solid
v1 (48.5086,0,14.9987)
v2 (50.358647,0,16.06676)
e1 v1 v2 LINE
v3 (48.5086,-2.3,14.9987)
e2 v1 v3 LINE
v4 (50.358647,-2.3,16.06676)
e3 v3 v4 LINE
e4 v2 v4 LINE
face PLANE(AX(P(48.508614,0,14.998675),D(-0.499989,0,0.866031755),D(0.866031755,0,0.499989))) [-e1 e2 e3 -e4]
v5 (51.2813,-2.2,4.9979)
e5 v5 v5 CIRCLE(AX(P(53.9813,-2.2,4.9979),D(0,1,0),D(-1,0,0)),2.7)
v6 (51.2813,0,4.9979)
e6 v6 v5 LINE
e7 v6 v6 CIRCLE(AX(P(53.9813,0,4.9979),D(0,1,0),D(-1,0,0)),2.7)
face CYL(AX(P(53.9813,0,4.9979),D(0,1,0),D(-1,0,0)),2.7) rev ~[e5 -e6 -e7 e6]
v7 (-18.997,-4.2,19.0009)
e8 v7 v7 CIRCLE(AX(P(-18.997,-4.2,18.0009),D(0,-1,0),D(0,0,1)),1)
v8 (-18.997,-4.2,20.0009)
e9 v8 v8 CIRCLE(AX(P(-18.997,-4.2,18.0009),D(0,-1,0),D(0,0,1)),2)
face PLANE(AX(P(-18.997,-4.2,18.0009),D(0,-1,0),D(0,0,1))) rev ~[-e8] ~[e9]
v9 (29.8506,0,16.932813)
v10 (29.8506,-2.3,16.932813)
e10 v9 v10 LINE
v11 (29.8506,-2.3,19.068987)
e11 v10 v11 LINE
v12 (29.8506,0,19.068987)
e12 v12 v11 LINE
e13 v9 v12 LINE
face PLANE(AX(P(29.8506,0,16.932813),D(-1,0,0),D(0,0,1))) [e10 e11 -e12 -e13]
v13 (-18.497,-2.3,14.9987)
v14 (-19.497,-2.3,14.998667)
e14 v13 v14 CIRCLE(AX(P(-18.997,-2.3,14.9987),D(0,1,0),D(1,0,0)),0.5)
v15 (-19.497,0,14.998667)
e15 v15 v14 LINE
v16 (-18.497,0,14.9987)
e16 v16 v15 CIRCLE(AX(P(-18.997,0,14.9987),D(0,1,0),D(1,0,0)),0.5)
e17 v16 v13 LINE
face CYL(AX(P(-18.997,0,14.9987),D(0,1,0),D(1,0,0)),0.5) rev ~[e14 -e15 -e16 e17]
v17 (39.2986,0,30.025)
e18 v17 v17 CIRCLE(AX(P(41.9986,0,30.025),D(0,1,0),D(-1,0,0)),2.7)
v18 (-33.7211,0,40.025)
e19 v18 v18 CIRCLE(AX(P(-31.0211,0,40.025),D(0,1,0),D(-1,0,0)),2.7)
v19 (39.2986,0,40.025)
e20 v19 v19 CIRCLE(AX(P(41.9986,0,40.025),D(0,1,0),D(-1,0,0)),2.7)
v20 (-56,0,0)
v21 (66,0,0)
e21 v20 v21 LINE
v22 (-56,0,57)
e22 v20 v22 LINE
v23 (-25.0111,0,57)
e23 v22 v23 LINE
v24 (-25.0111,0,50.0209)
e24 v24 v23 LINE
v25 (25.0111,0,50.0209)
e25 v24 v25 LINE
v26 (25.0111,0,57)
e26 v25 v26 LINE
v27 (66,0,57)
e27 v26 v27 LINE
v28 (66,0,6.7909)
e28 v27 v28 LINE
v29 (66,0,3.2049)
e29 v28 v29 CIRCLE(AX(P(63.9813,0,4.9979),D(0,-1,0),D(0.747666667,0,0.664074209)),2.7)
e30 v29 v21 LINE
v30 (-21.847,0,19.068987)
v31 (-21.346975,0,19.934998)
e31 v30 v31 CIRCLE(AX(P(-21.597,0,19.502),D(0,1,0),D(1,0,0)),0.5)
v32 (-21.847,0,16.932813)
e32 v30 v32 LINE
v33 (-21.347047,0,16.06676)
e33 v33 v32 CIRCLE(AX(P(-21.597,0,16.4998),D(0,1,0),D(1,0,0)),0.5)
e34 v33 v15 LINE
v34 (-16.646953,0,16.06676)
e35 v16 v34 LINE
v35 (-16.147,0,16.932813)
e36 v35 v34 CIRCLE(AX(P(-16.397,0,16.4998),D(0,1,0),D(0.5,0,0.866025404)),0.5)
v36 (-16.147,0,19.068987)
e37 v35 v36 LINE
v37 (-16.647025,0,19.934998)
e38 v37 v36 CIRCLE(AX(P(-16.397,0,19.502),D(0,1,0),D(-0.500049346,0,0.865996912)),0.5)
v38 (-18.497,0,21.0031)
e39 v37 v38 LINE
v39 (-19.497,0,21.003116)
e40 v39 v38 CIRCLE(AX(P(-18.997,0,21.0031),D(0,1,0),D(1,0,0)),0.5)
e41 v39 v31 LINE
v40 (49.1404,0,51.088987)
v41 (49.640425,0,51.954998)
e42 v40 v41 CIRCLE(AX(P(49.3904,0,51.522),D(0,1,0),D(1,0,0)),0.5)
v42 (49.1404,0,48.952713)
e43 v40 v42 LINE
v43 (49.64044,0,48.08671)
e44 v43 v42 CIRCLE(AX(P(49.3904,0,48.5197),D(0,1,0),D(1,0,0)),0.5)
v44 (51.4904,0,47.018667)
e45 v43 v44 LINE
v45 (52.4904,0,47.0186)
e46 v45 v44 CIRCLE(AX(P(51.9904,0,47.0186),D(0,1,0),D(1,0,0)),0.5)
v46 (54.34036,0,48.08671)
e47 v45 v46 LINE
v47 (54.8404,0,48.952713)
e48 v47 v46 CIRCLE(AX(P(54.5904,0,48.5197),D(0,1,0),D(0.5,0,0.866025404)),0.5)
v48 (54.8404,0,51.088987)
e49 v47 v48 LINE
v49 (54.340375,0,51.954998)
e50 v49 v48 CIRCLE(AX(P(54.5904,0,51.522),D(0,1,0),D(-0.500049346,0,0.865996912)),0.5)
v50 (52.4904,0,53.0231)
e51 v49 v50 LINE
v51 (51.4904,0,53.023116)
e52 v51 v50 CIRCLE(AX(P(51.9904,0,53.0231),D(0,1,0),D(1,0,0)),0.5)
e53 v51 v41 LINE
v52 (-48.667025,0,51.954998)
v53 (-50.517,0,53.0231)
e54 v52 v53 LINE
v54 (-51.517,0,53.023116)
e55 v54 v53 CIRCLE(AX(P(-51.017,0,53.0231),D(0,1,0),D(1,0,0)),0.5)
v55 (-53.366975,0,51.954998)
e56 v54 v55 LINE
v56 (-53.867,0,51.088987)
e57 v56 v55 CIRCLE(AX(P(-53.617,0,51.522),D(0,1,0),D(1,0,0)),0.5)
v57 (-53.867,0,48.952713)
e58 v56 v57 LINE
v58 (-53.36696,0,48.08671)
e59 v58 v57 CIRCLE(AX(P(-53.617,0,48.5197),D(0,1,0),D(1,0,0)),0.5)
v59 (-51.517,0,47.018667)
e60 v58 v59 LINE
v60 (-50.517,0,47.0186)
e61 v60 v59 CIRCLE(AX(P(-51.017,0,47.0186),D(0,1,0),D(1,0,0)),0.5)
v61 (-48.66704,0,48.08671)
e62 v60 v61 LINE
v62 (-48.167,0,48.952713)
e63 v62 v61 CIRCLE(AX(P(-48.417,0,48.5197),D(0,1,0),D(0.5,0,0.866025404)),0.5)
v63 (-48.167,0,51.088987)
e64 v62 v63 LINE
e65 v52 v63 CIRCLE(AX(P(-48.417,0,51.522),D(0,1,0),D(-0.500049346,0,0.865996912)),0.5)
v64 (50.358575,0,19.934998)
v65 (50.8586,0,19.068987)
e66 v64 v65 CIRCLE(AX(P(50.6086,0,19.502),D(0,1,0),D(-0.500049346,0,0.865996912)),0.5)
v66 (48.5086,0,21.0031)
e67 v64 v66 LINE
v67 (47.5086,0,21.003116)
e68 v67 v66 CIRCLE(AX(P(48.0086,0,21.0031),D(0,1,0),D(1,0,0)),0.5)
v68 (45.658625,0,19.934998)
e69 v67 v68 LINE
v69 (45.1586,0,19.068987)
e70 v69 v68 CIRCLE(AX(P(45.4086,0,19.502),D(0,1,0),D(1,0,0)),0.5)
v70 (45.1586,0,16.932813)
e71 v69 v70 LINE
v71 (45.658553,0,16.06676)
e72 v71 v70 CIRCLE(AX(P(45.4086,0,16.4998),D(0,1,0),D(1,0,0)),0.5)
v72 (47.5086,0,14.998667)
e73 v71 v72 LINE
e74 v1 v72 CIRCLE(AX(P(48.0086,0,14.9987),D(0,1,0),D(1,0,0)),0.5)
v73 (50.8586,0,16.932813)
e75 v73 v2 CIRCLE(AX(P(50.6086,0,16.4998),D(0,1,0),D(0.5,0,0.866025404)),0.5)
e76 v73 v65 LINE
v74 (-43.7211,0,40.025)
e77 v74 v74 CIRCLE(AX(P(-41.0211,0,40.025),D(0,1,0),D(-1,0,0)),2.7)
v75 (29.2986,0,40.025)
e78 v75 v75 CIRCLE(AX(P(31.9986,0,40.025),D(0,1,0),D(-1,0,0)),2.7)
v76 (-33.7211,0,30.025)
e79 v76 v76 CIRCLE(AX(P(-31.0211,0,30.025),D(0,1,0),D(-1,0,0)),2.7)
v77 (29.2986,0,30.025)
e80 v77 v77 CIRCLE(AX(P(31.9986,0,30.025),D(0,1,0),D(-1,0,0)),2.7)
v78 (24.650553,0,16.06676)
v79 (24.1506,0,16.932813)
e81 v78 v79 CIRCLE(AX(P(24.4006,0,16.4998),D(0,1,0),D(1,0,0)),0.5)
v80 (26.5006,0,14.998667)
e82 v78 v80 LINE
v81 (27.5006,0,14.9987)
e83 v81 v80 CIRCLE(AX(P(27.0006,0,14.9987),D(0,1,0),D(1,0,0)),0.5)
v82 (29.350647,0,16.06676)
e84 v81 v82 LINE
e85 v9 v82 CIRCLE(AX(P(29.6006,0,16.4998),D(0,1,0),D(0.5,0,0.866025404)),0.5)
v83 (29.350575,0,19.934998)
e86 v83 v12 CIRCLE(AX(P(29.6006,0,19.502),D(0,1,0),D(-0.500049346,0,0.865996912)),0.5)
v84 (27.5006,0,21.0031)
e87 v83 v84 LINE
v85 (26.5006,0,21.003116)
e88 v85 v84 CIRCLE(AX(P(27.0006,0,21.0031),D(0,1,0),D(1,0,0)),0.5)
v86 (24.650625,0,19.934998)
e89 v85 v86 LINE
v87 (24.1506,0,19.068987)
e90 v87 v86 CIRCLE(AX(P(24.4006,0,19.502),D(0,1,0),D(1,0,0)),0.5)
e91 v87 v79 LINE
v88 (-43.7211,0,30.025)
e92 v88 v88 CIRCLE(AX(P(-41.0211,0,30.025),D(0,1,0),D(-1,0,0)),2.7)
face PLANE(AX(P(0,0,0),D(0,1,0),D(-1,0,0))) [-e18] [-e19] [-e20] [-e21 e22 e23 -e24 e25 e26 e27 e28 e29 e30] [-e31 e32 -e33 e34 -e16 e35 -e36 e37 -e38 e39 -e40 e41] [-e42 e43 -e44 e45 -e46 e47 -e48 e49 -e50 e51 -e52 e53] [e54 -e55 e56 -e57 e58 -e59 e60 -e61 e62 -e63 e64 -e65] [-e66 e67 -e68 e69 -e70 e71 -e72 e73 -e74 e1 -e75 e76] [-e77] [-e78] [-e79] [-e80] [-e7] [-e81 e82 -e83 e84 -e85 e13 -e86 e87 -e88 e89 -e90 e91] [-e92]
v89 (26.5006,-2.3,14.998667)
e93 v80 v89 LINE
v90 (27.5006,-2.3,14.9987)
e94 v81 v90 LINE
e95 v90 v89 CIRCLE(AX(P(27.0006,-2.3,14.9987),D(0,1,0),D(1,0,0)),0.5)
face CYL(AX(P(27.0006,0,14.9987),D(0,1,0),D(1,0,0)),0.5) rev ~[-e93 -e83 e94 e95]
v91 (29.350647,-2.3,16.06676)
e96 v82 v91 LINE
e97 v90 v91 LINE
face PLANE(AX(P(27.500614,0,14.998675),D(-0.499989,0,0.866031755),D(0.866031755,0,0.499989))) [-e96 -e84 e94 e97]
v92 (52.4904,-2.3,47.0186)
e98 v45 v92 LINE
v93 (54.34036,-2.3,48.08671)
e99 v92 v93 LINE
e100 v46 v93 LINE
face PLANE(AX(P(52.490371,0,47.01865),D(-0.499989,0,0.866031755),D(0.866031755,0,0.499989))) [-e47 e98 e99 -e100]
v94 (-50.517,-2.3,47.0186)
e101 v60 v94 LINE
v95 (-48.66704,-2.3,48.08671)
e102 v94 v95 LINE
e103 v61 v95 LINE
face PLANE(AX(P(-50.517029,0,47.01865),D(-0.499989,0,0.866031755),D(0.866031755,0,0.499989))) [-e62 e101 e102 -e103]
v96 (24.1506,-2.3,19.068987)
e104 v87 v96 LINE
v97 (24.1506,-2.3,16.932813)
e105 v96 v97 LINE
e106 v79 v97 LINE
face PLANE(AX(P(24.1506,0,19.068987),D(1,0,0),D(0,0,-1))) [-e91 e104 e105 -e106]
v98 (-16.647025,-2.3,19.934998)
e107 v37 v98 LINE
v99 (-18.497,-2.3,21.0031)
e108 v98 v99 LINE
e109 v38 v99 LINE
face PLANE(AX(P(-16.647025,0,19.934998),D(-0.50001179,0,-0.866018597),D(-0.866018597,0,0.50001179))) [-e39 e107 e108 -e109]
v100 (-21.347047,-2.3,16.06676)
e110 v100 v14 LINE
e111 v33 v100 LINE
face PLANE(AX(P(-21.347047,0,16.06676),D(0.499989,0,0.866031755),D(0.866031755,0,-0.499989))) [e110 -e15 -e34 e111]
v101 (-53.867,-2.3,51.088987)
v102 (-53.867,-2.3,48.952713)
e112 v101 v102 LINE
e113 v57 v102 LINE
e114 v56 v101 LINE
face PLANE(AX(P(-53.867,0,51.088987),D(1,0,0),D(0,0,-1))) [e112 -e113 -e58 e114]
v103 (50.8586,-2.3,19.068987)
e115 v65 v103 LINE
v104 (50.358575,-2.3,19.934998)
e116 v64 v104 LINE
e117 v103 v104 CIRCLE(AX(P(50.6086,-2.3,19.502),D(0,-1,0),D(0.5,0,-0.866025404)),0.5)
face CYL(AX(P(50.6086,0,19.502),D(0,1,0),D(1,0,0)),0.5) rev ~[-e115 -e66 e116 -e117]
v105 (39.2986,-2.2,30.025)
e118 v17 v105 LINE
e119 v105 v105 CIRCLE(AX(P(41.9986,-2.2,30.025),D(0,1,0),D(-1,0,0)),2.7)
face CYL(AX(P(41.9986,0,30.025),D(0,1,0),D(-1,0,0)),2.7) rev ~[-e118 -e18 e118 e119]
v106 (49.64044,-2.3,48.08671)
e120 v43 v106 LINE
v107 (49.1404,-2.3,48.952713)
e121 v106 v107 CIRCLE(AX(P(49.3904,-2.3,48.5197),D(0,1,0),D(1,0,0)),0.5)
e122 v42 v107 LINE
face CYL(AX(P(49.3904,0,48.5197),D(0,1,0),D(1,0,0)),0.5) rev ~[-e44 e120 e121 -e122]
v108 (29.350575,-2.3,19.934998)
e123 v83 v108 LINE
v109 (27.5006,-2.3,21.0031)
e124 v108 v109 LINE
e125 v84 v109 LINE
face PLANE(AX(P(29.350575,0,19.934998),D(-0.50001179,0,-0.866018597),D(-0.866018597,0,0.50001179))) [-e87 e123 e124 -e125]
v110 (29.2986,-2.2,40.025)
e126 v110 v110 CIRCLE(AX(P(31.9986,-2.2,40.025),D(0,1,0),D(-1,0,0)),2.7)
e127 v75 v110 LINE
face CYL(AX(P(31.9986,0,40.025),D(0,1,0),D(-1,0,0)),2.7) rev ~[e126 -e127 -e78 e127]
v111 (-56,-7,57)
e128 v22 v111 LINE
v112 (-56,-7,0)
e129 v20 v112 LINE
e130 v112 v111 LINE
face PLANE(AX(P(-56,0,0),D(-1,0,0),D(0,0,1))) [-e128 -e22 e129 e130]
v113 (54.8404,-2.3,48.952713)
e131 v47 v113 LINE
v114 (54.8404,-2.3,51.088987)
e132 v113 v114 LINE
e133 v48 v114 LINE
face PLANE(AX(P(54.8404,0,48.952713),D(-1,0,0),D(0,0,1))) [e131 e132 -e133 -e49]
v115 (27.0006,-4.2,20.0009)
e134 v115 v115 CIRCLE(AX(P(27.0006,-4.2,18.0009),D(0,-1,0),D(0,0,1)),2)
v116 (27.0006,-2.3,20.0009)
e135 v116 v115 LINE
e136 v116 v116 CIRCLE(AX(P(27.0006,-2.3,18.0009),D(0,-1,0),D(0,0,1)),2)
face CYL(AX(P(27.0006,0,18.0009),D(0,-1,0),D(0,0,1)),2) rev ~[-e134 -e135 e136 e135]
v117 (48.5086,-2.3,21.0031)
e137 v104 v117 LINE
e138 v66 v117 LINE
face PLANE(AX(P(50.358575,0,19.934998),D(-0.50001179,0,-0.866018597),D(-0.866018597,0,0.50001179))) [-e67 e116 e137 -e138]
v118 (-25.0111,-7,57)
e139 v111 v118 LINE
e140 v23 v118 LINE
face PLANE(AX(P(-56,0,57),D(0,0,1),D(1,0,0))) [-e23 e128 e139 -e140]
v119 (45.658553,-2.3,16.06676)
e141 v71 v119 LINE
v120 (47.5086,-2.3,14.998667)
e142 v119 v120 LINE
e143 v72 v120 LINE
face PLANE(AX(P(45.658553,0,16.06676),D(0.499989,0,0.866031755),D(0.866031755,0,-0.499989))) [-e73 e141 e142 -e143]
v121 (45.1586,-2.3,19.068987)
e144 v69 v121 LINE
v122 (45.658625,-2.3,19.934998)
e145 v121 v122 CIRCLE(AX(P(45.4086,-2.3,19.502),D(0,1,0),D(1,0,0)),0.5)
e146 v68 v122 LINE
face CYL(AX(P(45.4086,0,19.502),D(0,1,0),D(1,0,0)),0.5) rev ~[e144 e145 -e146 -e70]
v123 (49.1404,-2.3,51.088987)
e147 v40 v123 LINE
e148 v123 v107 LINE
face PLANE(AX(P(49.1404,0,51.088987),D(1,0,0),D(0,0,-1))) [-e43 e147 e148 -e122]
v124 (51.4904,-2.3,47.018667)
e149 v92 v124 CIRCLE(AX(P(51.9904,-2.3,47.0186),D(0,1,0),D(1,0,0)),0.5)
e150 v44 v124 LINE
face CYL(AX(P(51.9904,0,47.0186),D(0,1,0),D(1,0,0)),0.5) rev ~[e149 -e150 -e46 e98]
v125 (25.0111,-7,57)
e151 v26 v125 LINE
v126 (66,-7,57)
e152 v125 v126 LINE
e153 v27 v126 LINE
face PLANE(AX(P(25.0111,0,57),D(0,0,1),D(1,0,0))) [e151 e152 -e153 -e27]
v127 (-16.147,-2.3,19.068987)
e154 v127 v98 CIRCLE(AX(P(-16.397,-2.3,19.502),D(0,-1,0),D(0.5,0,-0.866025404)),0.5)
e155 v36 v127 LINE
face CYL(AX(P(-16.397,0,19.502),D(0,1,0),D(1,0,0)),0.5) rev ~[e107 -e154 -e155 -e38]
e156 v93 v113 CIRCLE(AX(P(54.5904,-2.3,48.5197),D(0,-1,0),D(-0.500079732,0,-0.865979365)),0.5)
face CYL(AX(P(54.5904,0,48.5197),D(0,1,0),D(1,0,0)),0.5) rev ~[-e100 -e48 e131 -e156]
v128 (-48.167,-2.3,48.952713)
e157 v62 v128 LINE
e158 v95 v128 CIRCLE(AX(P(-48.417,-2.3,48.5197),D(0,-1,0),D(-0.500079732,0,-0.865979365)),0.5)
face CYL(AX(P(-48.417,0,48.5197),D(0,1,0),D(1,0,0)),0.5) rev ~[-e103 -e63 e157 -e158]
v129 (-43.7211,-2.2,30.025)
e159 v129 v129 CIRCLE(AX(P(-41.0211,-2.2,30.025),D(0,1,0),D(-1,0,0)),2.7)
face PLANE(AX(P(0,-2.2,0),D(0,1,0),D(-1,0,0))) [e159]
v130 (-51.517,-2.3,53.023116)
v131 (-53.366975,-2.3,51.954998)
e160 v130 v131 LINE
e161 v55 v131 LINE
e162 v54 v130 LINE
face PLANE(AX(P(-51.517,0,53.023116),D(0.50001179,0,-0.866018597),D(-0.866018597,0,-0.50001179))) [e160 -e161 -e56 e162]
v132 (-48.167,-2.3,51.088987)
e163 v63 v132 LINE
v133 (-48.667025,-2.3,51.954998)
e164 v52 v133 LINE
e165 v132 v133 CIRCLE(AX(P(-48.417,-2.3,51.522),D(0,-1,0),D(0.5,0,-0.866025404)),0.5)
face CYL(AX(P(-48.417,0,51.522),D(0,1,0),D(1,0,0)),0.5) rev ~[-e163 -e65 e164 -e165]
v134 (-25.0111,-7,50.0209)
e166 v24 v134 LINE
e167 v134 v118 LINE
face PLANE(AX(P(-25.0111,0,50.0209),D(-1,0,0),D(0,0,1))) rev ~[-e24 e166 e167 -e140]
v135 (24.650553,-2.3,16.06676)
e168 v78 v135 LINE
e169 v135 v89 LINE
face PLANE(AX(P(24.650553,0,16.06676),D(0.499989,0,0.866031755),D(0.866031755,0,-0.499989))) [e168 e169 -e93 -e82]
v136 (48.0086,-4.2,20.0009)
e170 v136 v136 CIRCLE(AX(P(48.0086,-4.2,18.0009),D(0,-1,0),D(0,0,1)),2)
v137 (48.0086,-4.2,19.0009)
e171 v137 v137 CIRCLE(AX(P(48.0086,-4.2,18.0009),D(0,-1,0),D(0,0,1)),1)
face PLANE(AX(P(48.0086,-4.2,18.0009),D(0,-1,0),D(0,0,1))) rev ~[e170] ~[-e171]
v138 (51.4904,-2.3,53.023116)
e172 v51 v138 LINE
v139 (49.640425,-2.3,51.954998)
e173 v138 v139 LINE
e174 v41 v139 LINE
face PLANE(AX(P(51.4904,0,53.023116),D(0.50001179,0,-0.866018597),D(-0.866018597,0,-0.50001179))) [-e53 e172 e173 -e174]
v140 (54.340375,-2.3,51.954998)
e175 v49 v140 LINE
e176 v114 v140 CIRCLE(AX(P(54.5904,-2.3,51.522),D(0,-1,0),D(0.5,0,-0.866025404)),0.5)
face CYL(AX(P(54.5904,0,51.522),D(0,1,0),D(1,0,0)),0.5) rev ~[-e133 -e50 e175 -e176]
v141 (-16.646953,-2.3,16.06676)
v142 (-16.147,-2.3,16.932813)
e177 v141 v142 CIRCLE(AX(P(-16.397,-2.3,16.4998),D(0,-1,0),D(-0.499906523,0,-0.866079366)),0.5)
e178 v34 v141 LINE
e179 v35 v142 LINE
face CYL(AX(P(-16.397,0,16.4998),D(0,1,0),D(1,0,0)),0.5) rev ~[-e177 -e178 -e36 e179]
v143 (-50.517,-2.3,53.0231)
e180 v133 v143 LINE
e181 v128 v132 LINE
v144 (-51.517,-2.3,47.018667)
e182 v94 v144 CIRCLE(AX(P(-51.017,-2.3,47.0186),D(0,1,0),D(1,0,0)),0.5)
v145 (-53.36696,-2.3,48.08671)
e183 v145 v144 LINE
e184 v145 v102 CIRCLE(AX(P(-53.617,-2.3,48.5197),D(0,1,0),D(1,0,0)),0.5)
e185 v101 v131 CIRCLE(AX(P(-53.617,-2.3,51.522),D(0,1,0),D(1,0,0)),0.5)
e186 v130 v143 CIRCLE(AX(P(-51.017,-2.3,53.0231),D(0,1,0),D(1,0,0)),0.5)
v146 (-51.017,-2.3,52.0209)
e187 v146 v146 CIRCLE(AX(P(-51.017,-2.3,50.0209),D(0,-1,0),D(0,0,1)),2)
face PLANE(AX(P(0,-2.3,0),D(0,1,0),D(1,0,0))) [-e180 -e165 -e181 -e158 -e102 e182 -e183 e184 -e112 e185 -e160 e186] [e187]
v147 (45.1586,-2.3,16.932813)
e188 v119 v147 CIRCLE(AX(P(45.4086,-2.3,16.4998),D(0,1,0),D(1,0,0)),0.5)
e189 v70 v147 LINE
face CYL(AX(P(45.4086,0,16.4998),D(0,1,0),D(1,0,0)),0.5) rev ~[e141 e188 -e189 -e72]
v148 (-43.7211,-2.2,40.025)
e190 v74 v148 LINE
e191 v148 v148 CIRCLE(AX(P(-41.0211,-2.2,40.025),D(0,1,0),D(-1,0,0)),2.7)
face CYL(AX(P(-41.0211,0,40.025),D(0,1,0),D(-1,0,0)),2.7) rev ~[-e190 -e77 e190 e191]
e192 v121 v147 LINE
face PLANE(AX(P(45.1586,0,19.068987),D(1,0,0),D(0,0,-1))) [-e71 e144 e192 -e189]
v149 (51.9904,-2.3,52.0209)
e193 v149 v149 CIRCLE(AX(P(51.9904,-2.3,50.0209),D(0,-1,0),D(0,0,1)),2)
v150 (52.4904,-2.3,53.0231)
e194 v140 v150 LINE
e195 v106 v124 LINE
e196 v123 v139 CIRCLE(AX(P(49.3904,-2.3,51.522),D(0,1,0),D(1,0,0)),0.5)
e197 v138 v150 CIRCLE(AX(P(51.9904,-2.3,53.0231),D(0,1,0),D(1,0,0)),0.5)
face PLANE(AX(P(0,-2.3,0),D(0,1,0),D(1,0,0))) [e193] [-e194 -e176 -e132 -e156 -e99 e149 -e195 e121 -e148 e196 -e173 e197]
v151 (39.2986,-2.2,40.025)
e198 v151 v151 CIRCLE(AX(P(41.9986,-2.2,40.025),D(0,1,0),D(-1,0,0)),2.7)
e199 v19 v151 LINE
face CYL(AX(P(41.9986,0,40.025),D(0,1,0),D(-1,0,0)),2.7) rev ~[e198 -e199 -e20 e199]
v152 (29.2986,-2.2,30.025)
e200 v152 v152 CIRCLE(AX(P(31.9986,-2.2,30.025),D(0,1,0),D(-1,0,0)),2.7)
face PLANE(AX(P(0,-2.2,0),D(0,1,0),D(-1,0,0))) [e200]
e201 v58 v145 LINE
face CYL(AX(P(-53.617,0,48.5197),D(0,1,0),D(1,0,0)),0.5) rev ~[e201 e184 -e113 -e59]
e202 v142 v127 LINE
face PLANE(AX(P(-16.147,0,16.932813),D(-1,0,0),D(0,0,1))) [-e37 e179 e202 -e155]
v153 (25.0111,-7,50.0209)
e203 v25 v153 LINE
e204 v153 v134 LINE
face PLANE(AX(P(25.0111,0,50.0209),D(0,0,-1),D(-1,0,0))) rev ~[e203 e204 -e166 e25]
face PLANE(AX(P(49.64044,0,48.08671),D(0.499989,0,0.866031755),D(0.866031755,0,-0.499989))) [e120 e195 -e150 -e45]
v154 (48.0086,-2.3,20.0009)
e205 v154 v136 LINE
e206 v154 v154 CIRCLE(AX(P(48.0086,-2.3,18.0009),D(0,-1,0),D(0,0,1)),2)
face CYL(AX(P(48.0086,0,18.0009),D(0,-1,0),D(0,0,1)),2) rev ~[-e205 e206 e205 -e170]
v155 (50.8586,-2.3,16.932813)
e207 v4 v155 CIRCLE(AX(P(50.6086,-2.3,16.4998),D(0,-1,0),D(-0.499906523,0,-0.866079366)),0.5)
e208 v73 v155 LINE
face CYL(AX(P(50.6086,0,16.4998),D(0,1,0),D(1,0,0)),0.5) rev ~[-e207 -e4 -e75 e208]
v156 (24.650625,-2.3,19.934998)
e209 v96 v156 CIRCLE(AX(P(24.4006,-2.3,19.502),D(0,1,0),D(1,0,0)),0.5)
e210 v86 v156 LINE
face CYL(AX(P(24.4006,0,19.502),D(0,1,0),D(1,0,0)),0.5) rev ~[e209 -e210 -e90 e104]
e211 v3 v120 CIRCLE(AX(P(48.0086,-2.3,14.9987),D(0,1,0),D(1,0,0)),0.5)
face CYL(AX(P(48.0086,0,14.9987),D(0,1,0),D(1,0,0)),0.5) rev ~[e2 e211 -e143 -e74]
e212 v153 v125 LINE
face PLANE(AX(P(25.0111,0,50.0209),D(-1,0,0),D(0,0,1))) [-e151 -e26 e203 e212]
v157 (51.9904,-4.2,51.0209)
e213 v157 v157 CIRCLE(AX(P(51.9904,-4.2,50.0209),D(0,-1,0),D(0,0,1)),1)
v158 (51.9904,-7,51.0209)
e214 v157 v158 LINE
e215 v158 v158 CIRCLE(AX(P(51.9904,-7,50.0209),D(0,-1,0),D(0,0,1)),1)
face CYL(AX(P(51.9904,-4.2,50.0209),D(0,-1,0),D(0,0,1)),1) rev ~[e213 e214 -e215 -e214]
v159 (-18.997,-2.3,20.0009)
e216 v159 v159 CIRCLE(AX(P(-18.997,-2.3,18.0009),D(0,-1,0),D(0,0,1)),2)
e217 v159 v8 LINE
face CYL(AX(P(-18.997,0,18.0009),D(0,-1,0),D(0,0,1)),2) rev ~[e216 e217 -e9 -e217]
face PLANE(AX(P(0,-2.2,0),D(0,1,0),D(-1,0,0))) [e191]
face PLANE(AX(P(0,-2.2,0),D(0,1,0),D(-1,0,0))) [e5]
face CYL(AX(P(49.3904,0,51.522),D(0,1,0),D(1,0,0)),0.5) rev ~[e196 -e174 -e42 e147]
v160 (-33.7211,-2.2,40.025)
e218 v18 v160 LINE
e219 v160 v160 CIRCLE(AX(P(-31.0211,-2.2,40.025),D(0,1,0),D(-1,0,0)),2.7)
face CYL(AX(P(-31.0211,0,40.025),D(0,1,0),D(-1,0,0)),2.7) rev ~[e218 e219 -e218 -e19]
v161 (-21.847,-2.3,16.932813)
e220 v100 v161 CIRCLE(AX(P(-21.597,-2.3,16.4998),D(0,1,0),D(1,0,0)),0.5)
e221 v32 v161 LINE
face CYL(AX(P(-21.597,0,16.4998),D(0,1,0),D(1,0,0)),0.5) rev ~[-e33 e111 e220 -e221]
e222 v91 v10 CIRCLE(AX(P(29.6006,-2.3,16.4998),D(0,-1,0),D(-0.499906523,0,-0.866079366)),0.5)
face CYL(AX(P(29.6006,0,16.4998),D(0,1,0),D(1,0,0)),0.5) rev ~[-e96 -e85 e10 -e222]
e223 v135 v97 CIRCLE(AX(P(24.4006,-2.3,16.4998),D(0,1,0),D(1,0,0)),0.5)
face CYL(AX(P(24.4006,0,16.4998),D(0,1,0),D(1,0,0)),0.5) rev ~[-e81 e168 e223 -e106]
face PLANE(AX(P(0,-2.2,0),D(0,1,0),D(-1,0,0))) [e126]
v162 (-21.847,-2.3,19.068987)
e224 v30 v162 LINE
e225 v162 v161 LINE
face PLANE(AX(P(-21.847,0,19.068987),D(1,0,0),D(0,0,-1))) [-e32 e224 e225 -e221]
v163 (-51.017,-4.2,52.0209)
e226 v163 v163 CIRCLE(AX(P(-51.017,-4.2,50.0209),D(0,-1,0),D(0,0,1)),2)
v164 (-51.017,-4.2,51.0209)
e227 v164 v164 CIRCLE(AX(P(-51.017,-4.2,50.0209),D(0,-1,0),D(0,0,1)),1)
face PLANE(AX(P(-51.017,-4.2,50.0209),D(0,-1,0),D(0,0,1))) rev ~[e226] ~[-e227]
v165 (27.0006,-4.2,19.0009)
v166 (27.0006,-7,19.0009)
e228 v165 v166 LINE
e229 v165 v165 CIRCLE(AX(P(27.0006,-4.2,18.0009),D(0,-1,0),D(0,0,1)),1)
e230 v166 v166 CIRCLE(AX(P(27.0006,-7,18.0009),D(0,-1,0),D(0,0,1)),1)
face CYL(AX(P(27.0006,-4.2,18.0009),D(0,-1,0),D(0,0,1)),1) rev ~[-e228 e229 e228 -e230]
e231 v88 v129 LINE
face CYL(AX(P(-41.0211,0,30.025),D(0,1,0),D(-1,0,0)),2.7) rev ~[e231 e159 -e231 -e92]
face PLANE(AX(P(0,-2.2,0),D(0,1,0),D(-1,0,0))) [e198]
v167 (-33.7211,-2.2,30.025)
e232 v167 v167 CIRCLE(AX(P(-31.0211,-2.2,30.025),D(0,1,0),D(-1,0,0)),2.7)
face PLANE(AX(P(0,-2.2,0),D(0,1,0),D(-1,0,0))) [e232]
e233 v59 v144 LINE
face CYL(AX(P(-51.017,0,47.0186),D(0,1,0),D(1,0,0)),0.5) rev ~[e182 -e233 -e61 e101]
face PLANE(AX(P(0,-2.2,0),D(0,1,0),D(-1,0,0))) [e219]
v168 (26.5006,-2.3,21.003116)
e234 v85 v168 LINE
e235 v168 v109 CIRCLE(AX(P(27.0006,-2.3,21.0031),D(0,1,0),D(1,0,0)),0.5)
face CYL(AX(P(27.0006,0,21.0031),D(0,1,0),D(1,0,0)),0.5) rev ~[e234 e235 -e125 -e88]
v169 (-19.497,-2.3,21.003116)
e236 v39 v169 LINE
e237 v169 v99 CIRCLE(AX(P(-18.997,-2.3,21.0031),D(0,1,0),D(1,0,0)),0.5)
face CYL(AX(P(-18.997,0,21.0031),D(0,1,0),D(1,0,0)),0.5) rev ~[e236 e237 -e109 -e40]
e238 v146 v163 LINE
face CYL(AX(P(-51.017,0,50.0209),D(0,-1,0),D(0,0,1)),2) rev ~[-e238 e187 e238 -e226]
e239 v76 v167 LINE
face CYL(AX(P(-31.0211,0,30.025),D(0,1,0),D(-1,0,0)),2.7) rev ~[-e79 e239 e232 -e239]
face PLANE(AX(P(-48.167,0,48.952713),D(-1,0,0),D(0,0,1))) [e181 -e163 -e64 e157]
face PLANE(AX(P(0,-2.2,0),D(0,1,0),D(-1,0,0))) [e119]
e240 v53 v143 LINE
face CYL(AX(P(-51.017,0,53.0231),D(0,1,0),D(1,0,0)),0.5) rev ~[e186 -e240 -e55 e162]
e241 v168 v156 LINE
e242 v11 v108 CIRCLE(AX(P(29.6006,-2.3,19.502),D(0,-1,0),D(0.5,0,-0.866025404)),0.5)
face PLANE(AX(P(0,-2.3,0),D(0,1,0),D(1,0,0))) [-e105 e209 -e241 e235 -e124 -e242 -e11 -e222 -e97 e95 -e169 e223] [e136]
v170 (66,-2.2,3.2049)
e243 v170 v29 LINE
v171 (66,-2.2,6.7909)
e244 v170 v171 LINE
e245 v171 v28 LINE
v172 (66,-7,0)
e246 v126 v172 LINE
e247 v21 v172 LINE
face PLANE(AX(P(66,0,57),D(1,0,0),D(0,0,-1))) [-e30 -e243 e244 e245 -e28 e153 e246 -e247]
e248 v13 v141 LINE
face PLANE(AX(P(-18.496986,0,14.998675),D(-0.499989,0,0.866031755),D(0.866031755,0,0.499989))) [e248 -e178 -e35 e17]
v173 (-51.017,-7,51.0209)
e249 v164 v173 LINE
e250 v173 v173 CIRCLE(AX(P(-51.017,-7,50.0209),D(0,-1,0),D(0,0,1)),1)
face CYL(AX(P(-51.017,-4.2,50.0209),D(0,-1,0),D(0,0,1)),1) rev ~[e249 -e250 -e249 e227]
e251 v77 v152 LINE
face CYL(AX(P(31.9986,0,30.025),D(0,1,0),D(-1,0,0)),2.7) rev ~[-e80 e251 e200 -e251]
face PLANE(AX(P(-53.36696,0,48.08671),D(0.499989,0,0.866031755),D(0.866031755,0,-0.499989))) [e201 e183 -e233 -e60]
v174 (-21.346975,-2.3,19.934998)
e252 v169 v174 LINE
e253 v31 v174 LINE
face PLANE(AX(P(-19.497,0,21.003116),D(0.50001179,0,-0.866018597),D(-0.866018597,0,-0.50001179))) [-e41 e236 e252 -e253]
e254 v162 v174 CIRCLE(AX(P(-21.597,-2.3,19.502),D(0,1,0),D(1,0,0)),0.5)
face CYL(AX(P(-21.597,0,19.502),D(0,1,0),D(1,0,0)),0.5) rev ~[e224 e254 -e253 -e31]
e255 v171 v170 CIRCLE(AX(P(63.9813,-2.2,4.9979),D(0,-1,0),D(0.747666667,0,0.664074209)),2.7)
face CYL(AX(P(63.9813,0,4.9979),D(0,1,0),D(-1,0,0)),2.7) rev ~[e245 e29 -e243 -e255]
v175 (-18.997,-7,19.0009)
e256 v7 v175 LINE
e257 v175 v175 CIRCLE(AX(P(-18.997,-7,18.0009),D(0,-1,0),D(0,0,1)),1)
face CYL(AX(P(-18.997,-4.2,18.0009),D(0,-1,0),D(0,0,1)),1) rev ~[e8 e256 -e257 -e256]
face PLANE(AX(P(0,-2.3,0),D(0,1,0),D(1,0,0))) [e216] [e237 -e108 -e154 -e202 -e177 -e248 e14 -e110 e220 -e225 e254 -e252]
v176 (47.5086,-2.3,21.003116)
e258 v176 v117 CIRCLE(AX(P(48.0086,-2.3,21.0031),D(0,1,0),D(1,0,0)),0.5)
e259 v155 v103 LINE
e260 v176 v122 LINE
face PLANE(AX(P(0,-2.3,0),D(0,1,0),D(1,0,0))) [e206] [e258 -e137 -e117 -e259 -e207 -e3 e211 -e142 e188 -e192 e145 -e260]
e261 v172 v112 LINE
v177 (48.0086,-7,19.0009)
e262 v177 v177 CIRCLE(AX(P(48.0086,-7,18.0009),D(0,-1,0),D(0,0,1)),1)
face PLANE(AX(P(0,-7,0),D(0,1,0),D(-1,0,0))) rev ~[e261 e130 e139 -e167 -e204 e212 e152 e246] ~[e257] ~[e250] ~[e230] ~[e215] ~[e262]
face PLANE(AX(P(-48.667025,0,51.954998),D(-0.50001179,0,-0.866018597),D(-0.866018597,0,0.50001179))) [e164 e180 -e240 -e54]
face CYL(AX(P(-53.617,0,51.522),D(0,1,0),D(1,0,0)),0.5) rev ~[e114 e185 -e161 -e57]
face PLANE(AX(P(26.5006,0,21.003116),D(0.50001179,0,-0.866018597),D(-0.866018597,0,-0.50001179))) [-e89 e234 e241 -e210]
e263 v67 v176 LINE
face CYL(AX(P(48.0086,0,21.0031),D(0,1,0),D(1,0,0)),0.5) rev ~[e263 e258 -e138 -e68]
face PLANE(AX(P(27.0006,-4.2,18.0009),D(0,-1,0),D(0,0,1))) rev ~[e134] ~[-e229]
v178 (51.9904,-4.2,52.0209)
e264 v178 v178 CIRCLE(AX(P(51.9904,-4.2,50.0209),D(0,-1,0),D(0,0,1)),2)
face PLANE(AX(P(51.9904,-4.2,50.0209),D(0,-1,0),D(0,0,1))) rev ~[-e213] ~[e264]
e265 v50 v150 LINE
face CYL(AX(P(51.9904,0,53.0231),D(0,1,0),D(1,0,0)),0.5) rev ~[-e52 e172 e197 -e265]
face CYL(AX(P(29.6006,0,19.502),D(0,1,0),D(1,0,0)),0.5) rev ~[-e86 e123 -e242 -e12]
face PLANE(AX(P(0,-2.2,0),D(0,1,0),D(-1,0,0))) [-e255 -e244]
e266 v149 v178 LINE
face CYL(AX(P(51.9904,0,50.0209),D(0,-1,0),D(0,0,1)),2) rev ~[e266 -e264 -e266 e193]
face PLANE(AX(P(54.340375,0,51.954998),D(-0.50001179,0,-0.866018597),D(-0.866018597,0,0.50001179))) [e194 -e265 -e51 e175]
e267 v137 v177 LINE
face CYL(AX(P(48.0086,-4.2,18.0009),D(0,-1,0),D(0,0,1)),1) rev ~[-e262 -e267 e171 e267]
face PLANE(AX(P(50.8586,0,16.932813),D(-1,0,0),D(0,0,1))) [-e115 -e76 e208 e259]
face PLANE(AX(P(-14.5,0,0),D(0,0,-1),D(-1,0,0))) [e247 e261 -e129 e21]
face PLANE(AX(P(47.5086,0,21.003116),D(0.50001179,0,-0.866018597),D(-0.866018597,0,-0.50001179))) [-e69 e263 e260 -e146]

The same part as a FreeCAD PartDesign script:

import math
import FreeCAD as App
import Part
import Sketcher
from FreeCAD import Vector
Q = App.Units.Quantity


def add_polygon(sketch, points):
    """Adds a closed chain of lines whose ends are joined by coincident constraints."""
    first, n = sketch.GeometryCount, len(points)
    for a, b in zip(points, points[1:] + points[:1]):
        sketch.addGeometry(Part.LineSegment(App.Vector(*a, 0), App.Vector(*b, 0)), False)
    for i in range(n):
        sketch.addConstraint(Sketcher.Constraint("Coincident", first + i, 2, first + (i + 1) % n, 1))

doc = App.newDocument("Part")
body = doc.addObject("PartDesign::Body", "Body")

sketch1 = doc.addObject("Sketcher::SketchObject", "Sketch")
body.addObject(sketch1)
sketch1.AttachmentSupport = (doc.XZ_Plane, [""])
sketch1.MapMode = "FlatFace"
add_polygon(sketch1, [(-56, 0), (-56, 57), (-25, 57), (-25, 50), (25, 50), (25, 57), (66, 57), (66, 0)])
sketch1.addConstraint([
    Sketcher.Constraint("Vertical", 0),
    Sketcher.Constraint("Horizontal", 1),
    Sketcher.Constraint("Vertical", 2),
    Sketcher.Constraint("Horizontal", 3),
    Sketcher.Constraint("Vertical", 4),
    Sketcher.Constraint("Horizontal", 5),
    Sketcher.Constraint("Vertical", 6),
    Sketcher.Constraint("Horizontal", 7),
    Sketcher.Constraint("Symmetric", 1, 2, 4, 2, -2),
    Sketcher.Constraint("PointOnObject", 6, 2, -1),
    Sketcher.Constraint("DistanceY", 0, 1, 0, 2, 57.0),
    Sketcher.Constraint("DistanceX", 0, 2, -1, 1, 56.0),
    Sketcher.Constraint("DistanceX", -1, 1, 5, 2, 66.0),
    Sketcher.Constraint("DistanceX", 1, 1, 1, 2, 30.989),
    Sketcher.Constraint("DistanceY", 2, 2, 2, 1, 6.979),
])
pad1 = doc.addObject("PartDesign::Pad", "Pad")
body.addObject(pad1)
pad1.Profile = sketch1
pad1.Length = 7

sketch2 = doc.addObject("Sketcher::SketchObject", "Sketch001")
body.addObject(sketch2)
sketch2.AttachmentSupport = (doc.XZ_Plane, [""])
sketch2.MapMode = "FlatFace"
sketch2.addGeometry([
    Part.Circle(Vector(-41, 40, 0), Vector(0, 0, 1), 2.7),
    Part.Circle(Vector(-41, 30, 0), Vector(0, 0, 1), 2.7),
    Part.Circle(Vector(-31, 40, 0), Vector(0, 0, 1), 2.7),
    Part.Circle(Vector(-31, 30, 0), Vector(0, 0, 1), 2.7),
    Part.Circle(Vector(32, 40, 0), Vector(0, 0, 1), 2.7),
    Part.Circle(Vector(32, 30, 0), Vector(0, 0, 1), 2.7),
    Part.Circle(Vector(42, 40, 0), Vector(0, 0, 1), 2.7),
    Part.Circle(Vector(42, 30, 0), Vector(0, 0, 1), 2.7),
    Part.Circle(Vector(54, 5, 0), Vector(0, 0, 1), 2.7),
    Part.Circle(Vector(64, 5, 0), Vector(0, 0, 1), 2.7),
], False)
sketch2.addConstraint([
    Sketcher.Constraint("Equal", 0, 1),
    Sketcher.Constraint("Equal", 1, 2),
    Sketcher.Constraint("Equal", 2, 3),
    Sketcher.Constraint("Equal", 3, 4),
    Sketcher.Constraint("Equal", 4, 5),
    Sketcher.Constraint("Equal", 5, 6),
    Sketcher.Constraint("Equal", 6, 7),
    Sketcher.Constraint("Equal", 7, 8),
    Sketcher.Constraint("Equal", 8, 9),
    Sketcher.Constraint("Horizontal", 0, 3, 2, 3),
    Sketcher.Constraint("Horizontal", 1, 3, 3, 3),
    Sketcher.Constraint("Horizontal", 2, 3, 4, 3),
    Sketcher.Constraint("Horizontal", 3, 3, 5, 3),
    Sketcher.Constraint("Horizontal", 4, 3, 6, 3),
    Sketcher.Constraint("Horizontal", 5, 3, 7, 3),
    Sketcher.Constraint("Horizontal", 8, 3, 9, 3),
    Sketcher.Constraint("Vertical", 0, 3, 1, 3),
    Sketcher.Constraint("Vertical", 2, 3, 3, 3),
    Sketcher.Constraint("Vertical", 4, 3, 5, 3),
    Sketcher.Constraint("Vertical", 6, 3, 7, 3),
    Sketcher.Constraint("Diameter", 0, 5.4),
    Sketcher.Constraint("DistanceY", 1, 3, 0, 3, 10.0),
    Sketcher.Constraint("DistanceX", 0, 3, 2, 3, 10.0),
    Sketcher.Constraint("DistanceX", 4, 3, 6, 3, 10.0),
    Sketcher.Constraint("DistanceX", 8, 3, 9, 3, 10.0),
    Sketcher.Constraint("DistanceX", 0, 3, -1, 1, 41.021),
    Sketcher.Constraint("DistanceY", -1, 1, 0, 3, 40.025),
    Sketcher.Constraint("DistanceY", -1, 1, 8, 3, 4.998),
    Sketcher.Constraint("DistanceX", -1, 1, 4, 3, 31.9986),
    Sketcher.Constraint("DistanceX", -1, 1, 8, 3, 53.9813),
])
pocket1 = doc.addObject("PartDesign::Pocket", "Pocket")
body.addObject(pocket1)
pocket1.Profile = sketch2
pocket1.Length = 2.2
pocket1.Reversed = True

sketch3 = doc.addObject("Sketcher::SketchObject", "Sketch002")
body.addObject(sketch3)
sketch3.AttachmentSupport = (doc.XZ_Plane, [""])
sketch3.MapMode = "FlatFace"
sketch3.addGeometry([
    Part.ArcOfCircle(Part.Circle(Vector(-51, 53, 0), Vector(0, 0, 1), 0.5), math.radians(0), math.radians(180)),
    Part.LineSegment(Vector(-50.5, 53, 0), Vector(-48.7, 52, 0)),
    Part.ArcOfCircle(Part.Circle(Vector(-48.4, 51.5, 0), Vector(0, 0, 1), 0.5), math.radians(-60), math.radians(120)),
    Part.LineSegment(Vector(-48.2, 51.1, 0), Vector(-48.2, 49, 0)),
    Part.ArcOfCircle(Part.Circle(Vector(-48.4, 48.5, 0), Vector(0, 0, 1), 0.5), math.radians(-120), math.radians(60)),
    Part.LineSegment(Vector(-48.7, 48.1, 0), Vector(-50.5, 47, 0)),
    Part.ArcOfCircle(Part.Circle(Vector(-51, 47, 0), Vector(0, 0, 1), 0.5), math.radians(180), math.radians(360)),
    Part.LineSegment(Vector(-51.5, 47, 0), Vector(-53.4, 48.1, 0)),
    Part.ArcOfCircle(Part.Circle(Vector(-53.6, 48.5, 0), Vector(0, 0, 1), 0.5), math.radians(120), math.radians(300)),
    Part.LineSegment(Vector(-53.9, 49, 0), Vector(-53.9, 51.1, 0)),
    Part.ArcOfCircle(Part.Circle(Vector(-53.6, 51.5, 0), Vector(0, 0, 1), 0.5), math.radians(60), math.radians(240)),
    Part.LineSegment(Vector(-53.4, 52, 0), Vector(-51.5, 53, 0)),
    Part.ArcOfCircle(Part.Circle(Vector(-19, 21, 0), Vector(0, 0, 1), 0.5), math.radians(0), math.radians(180)),
    Part.LineSegment(Vector(-18.5, 21, 0), Vector(-16.6, 19.9, 0)),
    Part.ArcOfCircle(Part.Circle(Vector(-16.4, 19.5, 0), Vector(0, 0, 1), 0.5), math.radians(-60), math.radians(120)),
    Part.LineSegment(Vector(-16.1, 19.1, 0), Vector(-16.1, 16.9, 0)),
    Part.ArcOfCircle(Part.Circle(Vector(-16.4, 16.5, 0), Vector(0, 0, 1), 0.5), math.radians(-120), math.radians(60)),
    Part.LineSegment(Vector(-16.6, 16.1, 0), Vector(-18.5, 15, 0)),
    Part.ArcOfCircle(Part.Circle(Vector(-19, 15, 0), Vector(0, 0, 1), 0.5), math.radians(-180), math.radians(0)),
    Part.LineSegment(Vector(-19.5, 15, 0), Vector(-21.3, 16.1, 0)),
    Part.ArcOfCircle(Part.Circle(Vector(-21.6, 16.5, 0), Vector(0, 0, 1), 0.5), math.radians(120), math.radians(300)),
    Part.LineSegment(Vector(-21.8, 16.9, 0), Vector(-21.8, 19.1, 0)),
    Part.ArcOfCircle(Part.Circle(Vector(-21.6, 19.5, 0), Vector(0, 0, 1), 0.5), math.radians(60), math.radians(240)),
    Part.LineSegment(Vector(-21.3, 19.9, 0), Vector(-19.5, 21, 0)),
    Part.ArcOfCircle(Part.Circle(Vector(27, 21, 0), Vector(0, 0, 1), 0.5), math.radians(0), math.radians(180)),
    Part.LineSegment(Vector(27.5, 21, 0), Vector(29.4, 19.9, 0)),
    Part.ArcOfCircle(Part.Circle(Vector(29.6, 19.5, 0), Vector(0, 0, 1), 0.5), math.radians(-60), math.radians(120)),
    Part.LineSegment(Vector(29.9, 19.1, 0), Vector(29.9, 16.9, 0)),
    Part.ArcOfCircle(Part.Circle(Vector(29.6, 16.5, 0), Vector(0, 0, 1), 0.5), math.radians(-120), math.radians(60)),
    Part.LineSegment(Vector(29.4, 16.1, 0), Vector(27.5, 15, 0)),
    Part.ArcOfCircle(Part.Circle(Vector(27, 15, 0), Vector(0, 0, 1), 0.5), math.radians(-180), math.radians(0)),
    Part.LineSegment(Vector(26.5, 15, 0), Vector(24.7, 16.1, 0)),
    Part.ArcOfCircle(Part.Circle(Vector(24.4, 16.5, 0), Vector(0, 0, 1), 0.5), math.radians(120), math.radians(300)),
    Part.LineSegment(Vector(24.2, 16.9, 0), Vector(24.2, 19.1, 0)),
    Part.ArcOfCircle(Part.Circle(Vector(24.4, 19.5, 0), Vector(0, 0, 1), 0.5), math.radians(60), math.radians(240)),
    Part.LineSegment(Vector(24.7, 19.9, 0), Vector(26.5, 21, 0)),
    Part.ArcOfCircle(Part.Circle(Vector(48, 21, 0), Vector(0, 0, 1), 0.5), math.radians(0), math.radians(180)),
    Part.LineSegment(Vector(48.5, 21, 0), Vector(50.4, 19.9, 0)),
    Part.ArcOfCircle(Part.Circle(Vector(50.6, 19.5, 0), Vector(0, 0, 1), 0.5), math.radians(-60), math.radians(120)),
    Part.LineSegment(Vector(50.9, 19.1, 0), Vector(50.9, 16.9, 0)),
    Part.ArcOfCircle(Part.Circle(Vector(50.6, 16.5, 0), Vector(0, 0, 1), 0.5), math.radians(-120), math.radians(60)),
    Part.LineSegment(Vector(50.4, 16.1, 0), Vector(48.5, 15, 0)),
    Part.ArcOfCircle(Part.Circle(Vector(48, 15, 0), Vector(0, 0, 1), 0.5), math.radians(-180), math.radians(0)),
    Part.LineSegment(Vector(47.5, 15, 0), Vector(45.7, 16.1, 0)),
    Part.ArcOfCircle(Part.Circle(Vector(45.4, 16.5, 0), Vector(0, 0, 1), 0.5), math.radians(120), math.radians(300)),
    Part.LineSegment(Vector(45.2, 16.9, 0), Vector(45.2, 19.1, 0)),
    Part.ArcOfCircle(Part.Circle(Vector(45.4, 19.5, 0), Vector(0, 0, 1), 0.5), math.radians(60), math.radians(240)),
    Part.LineSegment(Vector(45.7, 19.9, 0), Vector(47.5, 21, 0)),
    Part.ArcOfCircle(Part.Circle(Vector(52, 53, 0), Vector(0, 0, 1), 0.5), math.radians(0), math.radians(180)),
    Part.LineSegment(Vector(52.5, 53, 0), Vector(54.3, 52, 0)),
    Part.ArcOfCircle(Part.Circle(Vector(54.6, 51.5, 0), Vector(0, 0, 1), 0.5), math.radians(-60), math.radians(120)),
    Part.LineSegment(Vector(54.8, 51.1, 0), Vector(54.8, 49, 0)),
    Part.ArcOfCircle(Part.Circle(Vector(54.6, 48.5, 0), Vector(0, 0, 1), 0.5), math.radians(-120), math.radians(60)),
    Part.LineSegment(Vector(54.3, 48.1, 0), Vector(52.5, 47, 0)),
    Part.ArcOfCircle(Part.Circle(Vector(52, 47, 0), Vector(0, 0, 1), 0.5), math.radians(180), math.radians(360)),
    Part.LineSegment(Vector(51.5, 47, 0), Vector(49.6, 48.1, 0)),
    Part.ArcOfCircle(Part.Circle(Vector(49.4, 48.5, 0), Vector(0, 0, 1), 0.5), math.radians(120), math.radians(300)),
    Part.LineSegment(Vector(49.1, 49, 0), Vector(49.1, 51.1, 0)),
    Part.ArcOfCircle(Part.Circle(Vector(49.4, 51.5, 0), Vector(0, 0, 1), 0.5), math.radians(60), math.radians(240)),
    Part.LineSegment(Vector(49.6, 52, 0), Vector(51.5, 53, 0)),
], False)
sketch3.addConstraint([
    Sketcher.Constraint("Coincident", 0, 1, 1, 1),
    Sketcher.Constraint("Coincident", 1, 2, 2, 2),
    Sketcher.Constraint("Coincident", 2, 1, 3, 1),
    Sketcher.Constraint("Coincident", 3, 2, 4, 2),
    Sketcher.Constraint("Coincident", 4, 1, 5, 1),
    Sketcher.Constraint("Coincident", 5, 2, 6, 2),
    Sketcher.Constraint("Coincident", 6, 1, 7, 1),
    Sketcher.Constraint("Coincident", 7, 2, 8, 2),
    Sketcher.Constraint("Coincident", 8, 1, 9, 1),
    Sketcher.Constraint("Coincident", 9, 2, 10, 2),
    Sketcher.Constraint("Coincident", 10, 1, 11, 1),
    Sketcher.Constraint("Coincident", 11, 2, 0, 2),
    Sketcher.Constraint("Coincident", 12, 1, 13, 1),
    Sketcher.Constraint("Coincident", 13, 2, 14, 2),
    Sketcher.Constraint("Coincident", 14, 1, 15, 1),
    Sketcher.Constraint("Coincident", 15, 2, 16, 2),
    Sketcher.Constraint("Coincident", 16, 1, 17, 1),
    Sketcher.Constraint("Coincident", 17, 2, 18, 2),
    Sketcher.Constraint("Coincident", 18, 1, 19, 1),
    Sketcher.Constraint("Coincident", 19, 2, 20, 2),
    Sketcher.Constraint("Coincident", 20, 1, 21, 1),
    Sketcher.Constraint("Coincident", 21, 2, 22, 2),
    Sketcher.Constraint("Coincident", 22, 1, 23, 1),
    Sketcher.Constraint("Coincident", 23, 2, 12, 2),
    Sketcher.Constraint("Coincident", 24, 1, 25, 1),
    Sketcher.Constraint("Coincident", 25, 2, 26, 2),
    Sketcher.Constraint("Coincident", 26, 1, 27, 1),
    Sketcher.Constraint("Coincident", 27, 2, 28, 2),
    Sketcher.Constraint("Coincident", 28, 1, 29, 1),
    Sketcher.Constraint("Coincident", 29, 2, 30, 2),
    Sketcher.Constraint("Coincident", 30, 1, 31, 1),
    Sketcher.Constraint("Coincident", 31, 2, 32, 2),
    Sketcher.Constraint("Coincident", 32, 1, 33, 1),
    Sketcher.Constraint("Coincident", 33, 2, 34, 2),
    Sketcher.Constraint("Coincident", 34, 1, 35, 1),
    Sketcher.Constraint("Coincident", 35, 2, 24, 2),
    Sketcher.Constraint("Coincident", 36, 1, 37, 1),
    Sketcher.Constraint("Coincident", 37, 2, 38, 2),
    Sketcher.Constraint("Coincident", 38, 1, 39, 1),
    Sketcher.Constraint("Coincident", 39, 2, 40, 2),
    Sketcher.Constraint("Coincident", 40, 1, 41, 1),
    Sketcher.Constraint("Coincident", 41, 2, 42, 2),
    Sketcher.Constraint("Coincident", 42, 1, 43, 1),
    Sketcher.Constraint("Coincident", 43, 2, 44, 2),
    Sketcher.Constraint("Coincident", 44, 1, 45, 1),
    Sketcher.Constraint("Coincident", 45, 2, 46, 2),
    Sketcher.Constraint("Coincident", 46, 1, 47, 1),
    Sketcher.Constraint("Coincident", 47, 2, 36, 2),
    Sketcher.Constraint("Coincident", 48, 1, 49, 1),
    Sketcher.Constraint("Coincident", 49, 2, 50, 2),
    Sketcher.Constraint("Coincident", 50, 1, 51, 1),
    Sketcher.Constraint("Coincident", 51, 2, 52, 2),
    Sketcher.Constraint("Coincident", 52, 1, 53, 1),
    Sketcher.Constraint("Coincident", 53, 2, 54, 2),
    Sketcher.Constraint("Coincident", 54, 1, 55, 1),
    Sketcher.Constraint("Coincident", 55, 2, 56, 2),
    Sketcher.Constraint("Coincident", 56, 1, 57, 1),
    Sketcher.Constraint("Coincident", 57, 2, 58, 2),
    Sketcher.Constraint("Coincident", 58, 1, 59, 1),
    Sketcher.Constraint("Coincident", 59, 2, 48, 2),
    Sketcher.Constraint("Vertical", 3),
    Sketcher.Constraint("Vertical", 9),
    Sketcher.Constraint("Vertical", 15),
    Sketcher.Constraint("Vertical", 21),
    Sketcher.Constraint("Vertical", 27),
    Sketcher.Constraint("Vertical", 33),
    Sketcher.Constraint("Vertical", 39),
    Sketcher.Constraint("Vertical", 45),
    Sketcher.Constraint("Vertical", 51),
    Sketcher.Constraint("Vertical", 57),
    Sketcher.Constraint("Equal", 0, 2),
    Sketcher.Constraint("Equal", 2, 4),
    Sketcher.Constraint("Equal", 4, 6),
    Sketcher.Constraint("Equal", 6, 8),
    Sketcher.Constraint("Equal", 8, 10),
    Sketcher.Constraint("Equal", 10, 12),
    Sketcher.Constraint("Equal", 12, 14),
    Sketcher.Constraint("Equal", 14, 16),
    Sketcher.Constraint("Equal", 16, 18),
    Sketcher.Constraint("Equal", 18, 20),
    Sketcher.Constraint("Equal", 20, 22),
    Sketcher.Constraint("Equal", 22, 24),
    Sketcher.Constraint("Equal", 24, 26),
    Sketcher.Constraint("Equal", 26, 28),
    Sketcher.Constraint("Equal", 28, 30),
    Sketcher.Constraint("Equal", 30, 32),
    Sketcher.Constraint("Equal", 32, 34),
    Sketcher.Constraint("Equal", 34, 36),
    Sketcher.Constraint("Equal", 36, 38),
    Sketcher.Constraint("Equal", 38, 40),
    Sketcher.Constraint("Equal", 40, 42),
    Sketcher.Constraint("Equal", 42, 44),
    Sketcher.Constraint("Equal", 44, 46),
    Sketcher.Constraint("Equal", 46, 48),
    Sketcher.Constraint("Equal", 48, 50),
    Sketcher.Constraint("Equal", 50, 52),
    Sketcher.Constraint("Equal", 52, 54),
    Sketcher.Constraint("Equal", 54, 56),
    Sketcher.Constraint("Equal", 56, 58),
    Sketcher.Constraint("Parallel", 1, 7),
    Sketcher.Constraint("Parallel", 5, 11),
    Sketcher.Constraint("Parallel", 7, 13),
    Sketcher.Constraint("Parallel", 11, 17),
    Sketcher.Constraint("Parallel", 13, 19),
    Sketcher.Constraint("Parallel", 17, 23),
    Sketcher.Constraint("Parallel", 19, 25),
    Sketcher.Constraint("Parallel", 23, 29),
    Sketcher.Constraint("Parallel", 25, 31),
    Sketcher.Constraint("Parallel", 29, 35),
    Sketcher.Constraint("Parallel", 31, 37),
    Sketcher.Constraint("Parallel", 35, 41),
    Sketcher.Constraint("Parallel", 37, 43),
    Sketcher.Constraint("Parallel", 41, 47),
    Sketcher.Constraint("Parallel", 43, 49),
    Sketcher.Constraint("Parallel", 47, 53),
    Sketcher.Constraint("Parallel", 49, 55),
    Sketcher.Constraint("Parallel", 53, 59),
    Sketcher.Constraint("Horizontal", 4, 3, 8, 3),
    Sketcher.Constraint("Horizontal", 2, 3, 10, 3),
    Sketcher.Constraint("Horizontal", 16, 3, 20, 3),
    Sketcher.Constraint("Horizontal", 14, 3, 22, 3),
    Sketcher.Constraint("Horizontal", 12, 3, 24, 3),
    Sketcher.Constraint("Horizontal", 22, 3, 26, 3),
    Sketcher.Constraint("Horizontal", 20, 3, 28, 3),
    Sketcher.Constraint("Horizontal", 18, 3, 30, 3),
    Sketcher.Constraint("Horizontal", 28, 3, 32, 3),
    Sketcher.Constraint("Horizontal", 26, 3, 34, 3),
    Sketcher.Constraint("Horizontal", 24, 3, 36, 3),
    Sketcher.Constraint("Horizontal", 34, 3, 38, 3),
    Sketcher.Constraint("Horizontal", 32, 3, 40, 3),
    Sketcher.Constraint("Horizontal", 30, 3, 42, 3),
    Sketcher.Constraint("Horizontal", 40, 3, 44, 3),
    Sketcher.Constraint("Horizontal", 38, 3, 46, 3),
    Sketcher.Constraint("Horizontal", 0, 3, 48, 3),
    Sketcher.Constraint("Horizontal", 10, 3, 50, 3),
    Sketcher.Constraint("Horizontal", 8, 3, 52, 3),
    Sketcher.Constraint("Horizontal", 6, 3, 54, 3),
    Sketcher.Constraint("Horizontal", 52, 3, 56, 3),
    Sketcher.Constraint("Horizontal", 50, 3, 58, 3),
    Sketcher.Constraint("Horizontal", 48, 3, 0, 1),
    Sketcher.Constraint("Horizontal", 54, 3, 5, 2),
    Sketcher.Constraint("Horizontal", 5, 2, 6, 1),
    Sketcher.Constraint("Horizontal", 4, 1, 7, 2),
    Sketcher.Constraint("Horizontal", 3, 2, 8, 1),
    Sketcher.Constraint("Horizontal", 2, 1, 9, 2),
    Sketcher.Constraint("Horizontal", 1, 2, 10, 1),
    Sketcher.Constraint("Horizontal", 0, 1, 11, 2),
    Sketcher.Constraint("Horizontal", 36, 3, 12, 1),
    Sketcher.Constraint("Horizontal", 42, 3, 17, 2),
    Sketcher.Constraint("Horizontal", 17, 2, 18, 1),
    Sketcher.Constraint("Horizontal", 16, 1, 19, 2),
    Sketcher.Constraint("Horizontal", 15, 2, 20, 1),
    Sketcher.Constraint("Horizontal", 14, 1, 21, 2),
    Sketcher.Constraint("Horizontal", 13, 2, 22, 1),
    Sketcher.Constraint("Horizontal", 12, 1, 23, 2),
    Sketcher.Constraint("Horizontal", 23, 2, 24, 1),
    Sketcher.Constraint("Horizontal", 22, 1, 25, 2),
    Sketcher.Constraint("Horizontal", 21, 2, 26, 1),
    Sketcher.Constraint("Horizontal", 20, 1, 27, 2),
    Sketcher.Constraint("Horizontal", 19, 2, 28, 1),
    Sketcher.Constraint("Horizontal", 18, 1, 29, 2),
    Sketcher.Constraint("Horizontal", 29, 2, 30, 1),
    Sketcher.Constraint("Horizontal", 28, 1, 31, 2),
    Sketcher.Constraint("Horizontal", 27, 2, 32, 1),
    Sketcher.Constraint("Horizontal", 26, 1, 33, 2),
    Sketcher.Constraint("Horizontal", 25, 2, 34, 1),
    Sketcher.Constraint("Horizontal", 35, 2, 36, 1),
    Sketcher.Constraint("Horizontal", 34, 1, 37, 2),
    Sketcher.Constraint("Horizontal", 33, 2, 38, 1),
    Sketcher.Constraint("Horizontal", 32, 1, 39, 2),
    Sketcher.Constraint("Horizontal", 31, 2, 40, 1),
    Sketcher.Constraint("Horizontal", 30, 1, 41, 2),
    Sketcher.Constraint("Horizontal", 41, 2, 42, 1),
    Sketcher.Constraint("Horizontal", 40, 1, 43, 2),
    Sketcher.Constraint("Horizontal", 39, 2, 44, 1),
    Sketcher.Constraint("Horizontal", 38, 1, 45, 2),
    Sketcher.Constraint("Horizontal", 37, 2, 46, 1),
    Sketcher.Constraint("Horizontal", 11, 2, 48, 1),
    Sketcher.Constraint("Horizontal", 10, 1, 49, 2),
    Sketcher.Constraint("Horizontal", 9, 2, 50, 1),
    Sketcher.Constraint("Horizontal", 8, 1, 51, 2),
    Sketcher.Constraint("Horizontal", 7, 2, 52, 1),
    Sketcher.Constraint("Horizontal", 6, 1, 53, 2),
    Sketcher.Constraint("Horizontal", 53, 2, 54, 1),
    Sketcher.Constraint("Horizontal", 52, 1, 55, 2),
    Sketcher.Constraint("Horizontal", 51, 2, 56, 1),
    Sketcher.Constraint("Horizontal", 50, 1, 57, 2),
    Sketcher.Constraint("Horizontal", 49, 2, 58, 1),
    Sketcher.Constraint("Vertical", 2, 3, 4, 3),
    Sketcher.Constraint("Vertical", 0, 3, 6, 3),
    Sketcher.Constraint("Vertical", 14, 3, 16, 3),
    Sketcher.Constraint("Vertical", 1, 2, 4, 1),
    Sketcher.Constraint("Vertical", 13, 2, 16, 1),
    Sketcher.Constraint("Equal", 9, 15),
    Sketcher.Constraint("Equal", 11, 13),
    Sketcher.Constraint("Radius", 0, 0.5),
    Sketcher.Constraint("Angle", 1, Q("-30.0008 deg")),
    Sketcher.Constraint("DistanceY", 3, 2, 3, 1, 2.1363),
    Sketcher.Constraint("DistanceX", 0, 3, -1, 1, 51.017),
    Sketcher.Constraint("DistanceY", -1, 1, 0, 3, 53.023),
    Sketcher.Constraint("DistanceX", 2, 3, -1, 1, 48.417),
    Sketcher.Constraint("DistanceY", -1, 1, 2, 3, 51.522),
    Sketcher.Constraint("DistanceX", 12, 3, -1, 1, 18.997),
    Sketcher.Constraint("DistanceY", -1, 1, 12, 3, 21.003),
    Sketcher.Constraint("DistanceX", 14, 3, -1, 1, 16.397),
    Sketcher.Constraint("DistanceX", 2, 1, -1, 1, 48.167),
    Sketcher.Constraint("DistanceX", 14, 1, -1, 1, 16.147),
    Sketcher.Constraint("DistanceX", -1, 1, 24, 3, 27.0006),
    Sketcher.Constraint("DistanceX", -1, 1, 36, 3, 48.0086),
    Sketcher.Constraint("DistanceX", -1, 1, 48, 3, 51.9904),
])
pocket2 = doc.addObject("PartDesign::Pocket", "Pocket001")
body.addObject(pocket2)
pocket2.Profile = sketch3
pocket2.Length = 2.3
pocket2.Reversed = True

sketch4 = doc.addObject("Sketcher::SketchObject", "Sketch003")
body.addObject(sketch4)
sketch4.AttachmentSupport = (doc.XZ_Plane, [""])
sketch4.MapMode = "FlatFace"
sketch4.addGeometry([
    Part.Circle(Vector(-51, 50, 0), Vector(0, 0, 1), 1),
    Part.Circle(Vector(-19, 18, 0), Vector(0, 0, 1), 1),
    Part.Circle(Vector(27, 18, 0), Vector(0, 0, 1), 1),
    Part.Circle(Vector(48, 18, 0), Vector(0, 0, 1), 1),
    Part.Circle(Vector(52, 50, 0), Vector(0, 0, 1), 1),
], False)
sketch4.addConstraint([
    Sketcher.Constraint("Equal", 0, 1),
    Sketcher.Constraint("Equal", 1, 2),
    Sketcher.Constraint("Equal", 2, 3),
    Sketcher.Constraint("Equal", 3, 4),
    Sketcher.Constraint("Horizontal", 1, 3, 2, 3),
    Sketcher.Constraint("Horizontal", 2, 3, 3, 3),
    Sketcher.Constraint("Horizontal", 0, 3, 4, 3),
    Sketcher.Constraint("Diameter", 0, 2.0),
    Sketcher.Constraint("DistanceX", 0, 3, 1, 3, 32.02),
    Sketcher.Constraint("DistanceY", 1, 3, 0, 3, 32.02),
    Sketcher.Constraint("DistanceX", 0, 3, -1, 1, 51.017),
    Sketcher.Constraint("DistanceY", -1, 1, 0, 3, 50.021),
    Sketcher.Constraint("DistanceX", 2, 3, 3, 3, 21.008),
    Sketcher.Constraint("DistanceX", -1, 1, 2, 3, 27.0006),
    Sketcher.Constraint("DistanceX", -1, 1, 4, 3, 51.9904),
])
doc.recompute()
hole = doc.addObject("PartDesign::Hole", "Hole")
body.addObject(hole)
hole.Profile = sketch4
hole.ThreadType = "None"
hole.Diameter = 2
hole.DepthType = "ThroughAll"
hole.HoleCutType = "Counterbore"
hole.HoleCutDiameter = 4
hole.HoleCutDepth = 4.2
hole.Reversed = True

doc.recompute()
